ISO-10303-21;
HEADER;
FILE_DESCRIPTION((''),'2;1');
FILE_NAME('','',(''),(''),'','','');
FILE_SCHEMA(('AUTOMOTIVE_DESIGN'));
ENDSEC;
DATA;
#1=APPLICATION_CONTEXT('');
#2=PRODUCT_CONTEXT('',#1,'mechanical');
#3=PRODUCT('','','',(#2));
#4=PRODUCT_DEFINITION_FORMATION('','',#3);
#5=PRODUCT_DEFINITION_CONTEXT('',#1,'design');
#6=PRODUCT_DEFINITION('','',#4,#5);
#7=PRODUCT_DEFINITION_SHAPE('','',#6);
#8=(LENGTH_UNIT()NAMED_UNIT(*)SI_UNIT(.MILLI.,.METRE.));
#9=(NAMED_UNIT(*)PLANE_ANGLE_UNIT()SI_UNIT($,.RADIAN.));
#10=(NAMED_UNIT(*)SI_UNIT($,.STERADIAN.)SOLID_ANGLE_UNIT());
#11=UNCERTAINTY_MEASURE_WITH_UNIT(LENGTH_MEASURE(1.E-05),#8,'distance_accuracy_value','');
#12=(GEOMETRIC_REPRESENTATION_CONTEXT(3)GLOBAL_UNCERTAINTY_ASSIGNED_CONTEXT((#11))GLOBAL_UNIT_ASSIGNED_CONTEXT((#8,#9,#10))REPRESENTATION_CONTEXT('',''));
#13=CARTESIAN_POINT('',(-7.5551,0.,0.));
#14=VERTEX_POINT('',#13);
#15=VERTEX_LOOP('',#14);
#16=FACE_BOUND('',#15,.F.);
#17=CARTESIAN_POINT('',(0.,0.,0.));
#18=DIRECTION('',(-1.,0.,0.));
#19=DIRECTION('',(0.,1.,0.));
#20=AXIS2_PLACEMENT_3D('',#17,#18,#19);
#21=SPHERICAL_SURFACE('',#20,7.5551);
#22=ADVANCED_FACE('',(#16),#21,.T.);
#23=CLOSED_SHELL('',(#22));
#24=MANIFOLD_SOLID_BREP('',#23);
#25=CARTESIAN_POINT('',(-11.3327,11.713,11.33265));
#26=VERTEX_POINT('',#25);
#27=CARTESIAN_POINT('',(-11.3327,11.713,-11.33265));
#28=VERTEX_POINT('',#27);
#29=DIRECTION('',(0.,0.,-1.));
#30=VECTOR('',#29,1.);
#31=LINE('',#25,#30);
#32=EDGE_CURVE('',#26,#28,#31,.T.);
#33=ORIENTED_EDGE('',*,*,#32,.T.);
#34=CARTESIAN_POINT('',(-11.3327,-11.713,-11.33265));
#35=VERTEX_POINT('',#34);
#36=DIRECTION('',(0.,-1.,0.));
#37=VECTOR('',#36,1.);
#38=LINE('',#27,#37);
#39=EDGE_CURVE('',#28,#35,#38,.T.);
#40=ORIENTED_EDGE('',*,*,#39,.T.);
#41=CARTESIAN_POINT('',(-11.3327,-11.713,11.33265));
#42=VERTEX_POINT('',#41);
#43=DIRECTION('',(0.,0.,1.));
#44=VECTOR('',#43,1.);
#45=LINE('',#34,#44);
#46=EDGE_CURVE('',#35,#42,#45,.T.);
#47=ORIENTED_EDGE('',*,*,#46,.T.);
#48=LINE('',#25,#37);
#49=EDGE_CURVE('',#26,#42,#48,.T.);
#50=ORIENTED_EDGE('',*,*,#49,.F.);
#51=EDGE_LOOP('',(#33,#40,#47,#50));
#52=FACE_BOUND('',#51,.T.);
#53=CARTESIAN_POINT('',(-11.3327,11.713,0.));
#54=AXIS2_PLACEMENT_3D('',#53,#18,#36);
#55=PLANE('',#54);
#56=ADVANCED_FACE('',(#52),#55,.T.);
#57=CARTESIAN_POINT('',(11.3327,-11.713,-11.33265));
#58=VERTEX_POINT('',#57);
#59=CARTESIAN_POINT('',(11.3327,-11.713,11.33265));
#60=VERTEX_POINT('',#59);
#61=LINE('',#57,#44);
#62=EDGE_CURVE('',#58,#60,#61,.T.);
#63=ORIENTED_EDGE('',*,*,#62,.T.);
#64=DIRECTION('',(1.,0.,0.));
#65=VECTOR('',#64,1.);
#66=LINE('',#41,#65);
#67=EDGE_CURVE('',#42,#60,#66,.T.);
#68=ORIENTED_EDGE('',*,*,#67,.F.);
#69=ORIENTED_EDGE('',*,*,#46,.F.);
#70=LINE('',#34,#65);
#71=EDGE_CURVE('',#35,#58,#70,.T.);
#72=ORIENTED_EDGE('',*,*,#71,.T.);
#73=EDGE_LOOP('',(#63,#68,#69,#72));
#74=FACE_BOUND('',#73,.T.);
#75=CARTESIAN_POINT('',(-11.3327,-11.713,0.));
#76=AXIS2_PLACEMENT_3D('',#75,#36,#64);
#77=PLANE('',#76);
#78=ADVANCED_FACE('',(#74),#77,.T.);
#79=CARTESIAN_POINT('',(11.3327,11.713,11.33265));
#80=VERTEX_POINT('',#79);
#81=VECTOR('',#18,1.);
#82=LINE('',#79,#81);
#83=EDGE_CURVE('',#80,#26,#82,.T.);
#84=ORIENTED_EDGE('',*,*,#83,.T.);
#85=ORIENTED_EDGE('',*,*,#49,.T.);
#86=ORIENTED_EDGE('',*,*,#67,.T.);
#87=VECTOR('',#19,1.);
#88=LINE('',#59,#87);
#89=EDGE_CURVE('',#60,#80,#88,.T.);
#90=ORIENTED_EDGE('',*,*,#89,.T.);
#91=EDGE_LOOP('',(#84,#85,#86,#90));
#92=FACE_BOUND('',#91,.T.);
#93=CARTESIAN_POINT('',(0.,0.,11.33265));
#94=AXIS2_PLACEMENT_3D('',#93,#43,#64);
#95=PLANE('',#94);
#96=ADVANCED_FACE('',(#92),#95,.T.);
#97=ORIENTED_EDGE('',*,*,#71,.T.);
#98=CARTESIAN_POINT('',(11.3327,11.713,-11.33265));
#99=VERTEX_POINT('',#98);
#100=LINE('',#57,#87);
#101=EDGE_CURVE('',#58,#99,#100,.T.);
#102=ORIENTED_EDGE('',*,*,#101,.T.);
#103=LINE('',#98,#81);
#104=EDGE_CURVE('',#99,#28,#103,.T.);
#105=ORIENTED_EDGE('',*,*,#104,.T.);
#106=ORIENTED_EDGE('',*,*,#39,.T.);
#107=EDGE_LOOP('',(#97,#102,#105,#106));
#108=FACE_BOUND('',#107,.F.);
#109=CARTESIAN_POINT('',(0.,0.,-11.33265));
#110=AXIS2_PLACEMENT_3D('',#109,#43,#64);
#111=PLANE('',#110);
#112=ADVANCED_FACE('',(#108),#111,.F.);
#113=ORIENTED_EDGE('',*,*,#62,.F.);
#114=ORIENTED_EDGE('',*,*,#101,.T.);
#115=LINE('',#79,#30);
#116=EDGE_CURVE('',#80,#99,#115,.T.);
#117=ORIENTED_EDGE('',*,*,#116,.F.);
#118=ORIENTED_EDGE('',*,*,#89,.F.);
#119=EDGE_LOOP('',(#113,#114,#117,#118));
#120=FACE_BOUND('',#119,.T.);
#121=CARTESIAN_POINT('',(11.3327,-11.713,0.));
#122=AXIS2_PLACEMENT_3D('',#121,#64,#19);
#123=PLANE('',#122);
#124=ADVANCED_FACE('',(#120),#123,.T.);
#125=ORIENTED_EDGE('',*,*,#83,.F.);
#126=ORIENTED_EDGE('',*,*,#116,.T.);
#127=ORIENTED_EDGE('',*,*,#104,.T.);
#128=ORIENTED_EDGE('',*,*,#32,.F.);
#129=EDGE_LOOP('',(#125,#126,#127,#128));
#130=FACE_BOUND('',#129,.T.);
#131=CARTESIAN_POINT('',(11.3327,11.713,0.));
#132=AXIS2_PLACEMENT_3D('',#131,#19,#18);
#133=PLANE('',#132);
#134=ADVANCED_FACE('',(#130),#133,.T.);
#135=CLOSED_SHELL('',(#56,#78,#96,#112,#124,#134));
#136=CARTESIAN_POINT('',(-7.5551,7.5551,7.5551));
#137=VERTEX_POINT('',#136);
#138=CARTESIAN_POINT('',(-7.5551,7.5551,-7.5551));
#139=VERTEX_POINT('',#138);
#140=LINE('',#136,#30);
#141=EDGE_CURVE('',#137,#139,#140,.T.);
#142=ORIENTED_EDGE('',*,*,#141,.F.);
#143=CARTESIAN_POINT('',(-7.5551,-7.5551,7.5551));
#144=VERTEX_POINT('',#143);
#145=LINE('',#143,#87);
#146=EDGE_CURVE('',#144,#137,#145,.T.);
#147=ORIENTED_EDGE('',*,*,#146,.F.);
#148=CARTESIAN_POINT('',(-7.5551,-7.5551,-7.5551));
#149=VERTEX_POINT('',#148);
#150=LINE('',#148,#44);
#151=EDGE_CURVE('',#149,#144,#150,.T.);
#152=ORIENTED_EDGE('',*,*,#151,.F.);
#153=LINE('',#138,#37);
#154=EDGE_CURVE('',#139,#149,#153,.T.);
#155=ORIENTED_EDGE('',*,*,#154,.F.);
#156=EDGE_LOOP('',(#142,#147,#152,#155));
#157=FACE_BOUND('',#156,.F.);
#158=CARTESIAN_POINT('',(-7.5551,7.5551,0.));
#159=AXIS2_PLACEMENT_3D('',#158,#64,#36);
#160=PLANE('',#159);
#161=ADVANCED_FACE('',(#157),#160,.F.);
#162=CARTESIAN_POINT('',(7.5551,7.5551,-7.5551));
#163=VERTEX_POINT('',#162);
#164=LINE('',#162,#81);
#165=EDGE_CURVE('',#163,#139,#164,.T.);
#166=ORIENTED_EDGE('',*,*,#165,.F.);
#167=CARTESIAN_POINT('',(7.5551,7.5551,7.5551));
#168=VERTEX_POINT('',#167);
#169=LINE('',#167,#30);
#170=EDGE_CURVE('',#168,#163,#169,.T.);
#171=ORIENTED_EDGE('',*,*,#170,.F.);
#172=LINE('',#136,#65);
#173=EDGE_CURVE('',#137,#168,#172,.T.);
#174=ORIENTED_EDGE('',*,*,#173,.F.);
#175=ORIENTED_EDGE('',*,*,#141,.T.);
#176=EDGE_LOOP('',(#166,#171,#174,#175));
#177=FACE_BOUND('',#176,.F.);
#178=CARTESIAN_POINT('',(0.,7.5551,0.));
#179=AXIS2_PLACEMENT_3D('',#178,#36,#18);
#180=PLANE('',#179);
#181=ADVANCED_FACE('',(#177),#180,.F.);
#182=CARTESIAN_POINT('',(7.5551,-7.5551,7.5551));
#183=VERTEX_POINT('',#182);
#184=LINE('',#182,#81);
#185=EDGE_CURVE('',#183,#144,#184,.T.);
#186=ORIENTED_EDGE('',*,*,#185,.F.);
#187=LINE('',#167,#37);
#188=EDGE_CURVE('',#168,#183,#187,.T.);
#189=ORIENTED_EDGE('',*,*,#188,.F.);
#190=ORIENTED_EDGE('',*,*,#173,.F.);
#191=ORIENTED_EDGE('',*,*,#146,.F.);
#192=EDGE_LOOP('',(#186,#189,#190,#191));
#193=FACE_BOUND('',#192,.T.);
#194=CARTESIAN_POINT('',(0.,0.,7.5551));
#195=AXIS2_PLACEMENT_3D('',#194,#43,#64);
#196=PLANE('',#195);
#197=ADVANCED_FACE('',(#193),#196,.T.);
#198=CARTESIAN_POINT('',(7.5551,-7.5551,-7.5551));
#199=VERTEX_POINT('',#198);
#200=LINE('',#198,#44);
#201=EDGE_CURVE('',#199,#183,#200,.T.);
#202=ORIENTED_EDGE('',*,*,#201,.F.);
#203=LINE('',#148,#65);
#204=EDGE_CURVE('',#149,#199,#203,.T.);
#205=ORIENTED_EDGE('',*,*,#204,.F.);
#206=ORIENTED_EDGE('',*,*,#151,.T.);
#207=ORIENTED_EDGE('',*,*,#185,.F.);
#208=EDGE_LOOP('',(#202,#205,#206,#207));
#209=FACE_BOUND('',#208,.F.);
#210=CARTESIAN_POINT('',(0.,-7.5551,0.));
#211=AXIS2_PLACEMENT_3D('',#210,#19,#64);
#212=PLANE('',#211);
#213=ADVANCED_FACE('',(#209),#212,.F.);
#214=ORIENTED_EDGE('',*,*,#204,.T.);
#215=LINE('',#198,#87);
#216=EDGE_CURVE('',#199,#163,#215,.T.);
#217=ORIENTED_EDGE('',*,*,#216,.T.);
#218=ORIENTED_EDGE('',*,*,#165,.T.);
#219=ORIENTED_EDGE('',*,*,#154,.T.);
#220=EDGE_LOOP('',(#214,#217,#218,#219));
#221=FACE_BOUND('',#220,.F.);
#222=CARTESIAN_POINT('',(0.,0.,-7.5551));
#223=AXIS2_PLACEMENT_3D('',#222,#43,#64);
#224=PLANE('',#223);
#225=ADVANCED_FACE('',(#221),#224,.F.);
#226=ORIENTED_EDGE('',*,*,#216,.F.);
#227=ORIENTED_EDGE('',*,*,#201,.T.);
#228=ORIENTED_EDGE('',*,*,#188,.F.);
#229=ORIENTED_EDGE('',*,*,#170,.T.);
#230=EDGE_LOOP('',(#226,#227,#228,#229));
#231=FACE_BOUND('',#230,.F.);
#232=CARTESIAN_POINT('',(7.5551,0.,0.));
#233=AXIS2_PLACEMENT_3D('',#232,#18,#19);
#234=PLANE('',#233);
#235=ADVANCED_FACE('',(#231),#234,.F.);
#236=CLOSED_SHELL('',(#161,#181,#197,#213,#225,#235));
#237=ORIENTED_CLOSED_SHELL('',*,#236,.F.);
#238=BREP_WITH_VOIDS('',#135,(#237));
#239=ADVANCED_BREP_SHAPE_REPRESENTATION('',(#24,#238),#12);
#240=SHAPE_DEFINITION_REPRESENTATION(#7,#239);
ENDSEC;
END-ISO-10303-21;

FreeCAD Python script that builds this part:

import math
import FreeCAD as App
import Part
import Sketcher
from FreeCAD import Vector


def add_polygon(sketch, points):
    """Adds a closed chain of lines whose ends are joined by coincident constraints."""
    first, n = sketch.GeometryCount, len(points)
    for a, b in zip(points, points[1:] + points[:1]):
        sketch.addGeometry(Part.LineSegment(App.Vector(*a, 0), App.Vector(*b, 0)), False)
    for i in range(n):
        sketch.addConstraint(Sketcher.Constraint("Coincident", first + i, 2, first + (i + 1) % n, 1))

doc = App.newDocument("Part")
params = doc.addObject("Spreadsheet::Sheet", "Params")
for row, (alias, value) in enumerate([
    ("pad1_length", "22.6653 mm"),
    ("pocket1_length", "15.1102 mm"),
    ("revolution_angle", "360 deg"),
], start=1):
    params.set(f"A{row}", alias)
    params.set(f"B{row}", "=" + value)
    params.setAlias(f"B{row}", alias)

body = doc.addObject("PartDesign::Body", "Body")
body.AllowCompound = True

# Sketch on XY plane
sketch1 = body.newObject("Sketcher::SketchObject", "Sketch")
sketch1.AttachmentSupport = (doc.getObject("XY_Plane"), [""])
sketch1.MapMode = "FlatFace"
add_polygon(sketch1, [(-11, 12), (-11, -12), (11, -12), (11, 12)])  # lines 0-3
sketch1.addConstraint([
    Sketcher.Constraint("Vertical", 0),
    Sketcher.Constraint("Horizontal", 1),
    Sketcher.Constraint("Vertical", 2),
    Sketcher.Constraint("Horizontal", 3),
    Sketcher.Constraint("Symmetric", 0, 2, 2, 2, -1, 1),
    Sketcher.Constraint("DistanceX", 1, 1, 1, 2, 22.6654),
    Sketcher.Constraint("DistanceY", 0, 2, 0, 1, 23.426),
])
pad1 = body.newObject("PartDesign::Pad", "Pad")
pad1.Profile = sketch1
pad1.setExpression("Length", "Params.pad1_length")
pad1.Midplane = True

# Sketch on XY plane
sketch2 = body.newObject("Sketcher::SketchObject", "Sketch001")
sketch2.AttachmentSupport = (doc.getObject("XY_Plane"), [""])
sketch2.MapMode = "FlatFace"
add_polygon(sketch2, [(-8, 8), (-8, -8), (8, -8), (8, 8)])  # lines 0-3
sketch2.addConstraint([
    Sketcher.Constraint("Vertical", 0),
    Sketcher.Constraint("Horizontal", 1),
    Sketcher.Constraint("Vertical", 2),
    Sketcher.Constraint("Horizontal", 3),
    Sketcher.Constraint("Symmetric", 0, 2, 2, 2, -1, 1),
    Sketcher.Constraint("Equal", 3, 0),
    Sketcher.Constraint("DistanceX", 1, 1, 1, 2, 15.1102),
])
pocket1 = body.newObject("PartDesign::Pocket", "Pocket")
pocket1.Profile = sketch2
pocket1.setExpression("Length", "Params.pocket1_length")
pocket1.Midplane = True

# Sketch on XY plane
sketch3 = body.newObject("Sketcher::SketchObject", "Sketch002")
sketch3.AttachmentSupport = (doc.getObject("XY_Plane"), [""])
sketch3.MapMode = "FlatFace"
sketch3.addGeometry([
    Part.LineSegment(Vector(-8, 0, 0), Vector(8, 0, 0)),
    Part.ArcOfCircle(Part.Circle(Vector(0, 0, 0), Vector(0, 0, 1), 8), math.radians(0), math.radians(180)),
], False)
sketch3.addConstraint([
    Sketcher.Constraint("Coincident", 0, 1, 1, 2),
    Sketcher.Constraint("Coincident", 1, 1, 0, 2),
    Sketcher.Constraint("Horizontal", 0),
    Sketcher.Constraint("Coincident", 1, 3, -1, 1),
    Sketcher.Constraint("PointOnObject", 0, 1, -1),
    Sketcher.Constraint("Radius", 1, 7.555),
])
revolution = body.newObject("PartDesign::Revolution", "Revolution")
revolution.Profile = sketch3
revolution.ReferenceAxis = (sketch3, ["H_Axis"])
revolution.setExpression("Angle", "Params.revolution_angle")

doc.recompute()
